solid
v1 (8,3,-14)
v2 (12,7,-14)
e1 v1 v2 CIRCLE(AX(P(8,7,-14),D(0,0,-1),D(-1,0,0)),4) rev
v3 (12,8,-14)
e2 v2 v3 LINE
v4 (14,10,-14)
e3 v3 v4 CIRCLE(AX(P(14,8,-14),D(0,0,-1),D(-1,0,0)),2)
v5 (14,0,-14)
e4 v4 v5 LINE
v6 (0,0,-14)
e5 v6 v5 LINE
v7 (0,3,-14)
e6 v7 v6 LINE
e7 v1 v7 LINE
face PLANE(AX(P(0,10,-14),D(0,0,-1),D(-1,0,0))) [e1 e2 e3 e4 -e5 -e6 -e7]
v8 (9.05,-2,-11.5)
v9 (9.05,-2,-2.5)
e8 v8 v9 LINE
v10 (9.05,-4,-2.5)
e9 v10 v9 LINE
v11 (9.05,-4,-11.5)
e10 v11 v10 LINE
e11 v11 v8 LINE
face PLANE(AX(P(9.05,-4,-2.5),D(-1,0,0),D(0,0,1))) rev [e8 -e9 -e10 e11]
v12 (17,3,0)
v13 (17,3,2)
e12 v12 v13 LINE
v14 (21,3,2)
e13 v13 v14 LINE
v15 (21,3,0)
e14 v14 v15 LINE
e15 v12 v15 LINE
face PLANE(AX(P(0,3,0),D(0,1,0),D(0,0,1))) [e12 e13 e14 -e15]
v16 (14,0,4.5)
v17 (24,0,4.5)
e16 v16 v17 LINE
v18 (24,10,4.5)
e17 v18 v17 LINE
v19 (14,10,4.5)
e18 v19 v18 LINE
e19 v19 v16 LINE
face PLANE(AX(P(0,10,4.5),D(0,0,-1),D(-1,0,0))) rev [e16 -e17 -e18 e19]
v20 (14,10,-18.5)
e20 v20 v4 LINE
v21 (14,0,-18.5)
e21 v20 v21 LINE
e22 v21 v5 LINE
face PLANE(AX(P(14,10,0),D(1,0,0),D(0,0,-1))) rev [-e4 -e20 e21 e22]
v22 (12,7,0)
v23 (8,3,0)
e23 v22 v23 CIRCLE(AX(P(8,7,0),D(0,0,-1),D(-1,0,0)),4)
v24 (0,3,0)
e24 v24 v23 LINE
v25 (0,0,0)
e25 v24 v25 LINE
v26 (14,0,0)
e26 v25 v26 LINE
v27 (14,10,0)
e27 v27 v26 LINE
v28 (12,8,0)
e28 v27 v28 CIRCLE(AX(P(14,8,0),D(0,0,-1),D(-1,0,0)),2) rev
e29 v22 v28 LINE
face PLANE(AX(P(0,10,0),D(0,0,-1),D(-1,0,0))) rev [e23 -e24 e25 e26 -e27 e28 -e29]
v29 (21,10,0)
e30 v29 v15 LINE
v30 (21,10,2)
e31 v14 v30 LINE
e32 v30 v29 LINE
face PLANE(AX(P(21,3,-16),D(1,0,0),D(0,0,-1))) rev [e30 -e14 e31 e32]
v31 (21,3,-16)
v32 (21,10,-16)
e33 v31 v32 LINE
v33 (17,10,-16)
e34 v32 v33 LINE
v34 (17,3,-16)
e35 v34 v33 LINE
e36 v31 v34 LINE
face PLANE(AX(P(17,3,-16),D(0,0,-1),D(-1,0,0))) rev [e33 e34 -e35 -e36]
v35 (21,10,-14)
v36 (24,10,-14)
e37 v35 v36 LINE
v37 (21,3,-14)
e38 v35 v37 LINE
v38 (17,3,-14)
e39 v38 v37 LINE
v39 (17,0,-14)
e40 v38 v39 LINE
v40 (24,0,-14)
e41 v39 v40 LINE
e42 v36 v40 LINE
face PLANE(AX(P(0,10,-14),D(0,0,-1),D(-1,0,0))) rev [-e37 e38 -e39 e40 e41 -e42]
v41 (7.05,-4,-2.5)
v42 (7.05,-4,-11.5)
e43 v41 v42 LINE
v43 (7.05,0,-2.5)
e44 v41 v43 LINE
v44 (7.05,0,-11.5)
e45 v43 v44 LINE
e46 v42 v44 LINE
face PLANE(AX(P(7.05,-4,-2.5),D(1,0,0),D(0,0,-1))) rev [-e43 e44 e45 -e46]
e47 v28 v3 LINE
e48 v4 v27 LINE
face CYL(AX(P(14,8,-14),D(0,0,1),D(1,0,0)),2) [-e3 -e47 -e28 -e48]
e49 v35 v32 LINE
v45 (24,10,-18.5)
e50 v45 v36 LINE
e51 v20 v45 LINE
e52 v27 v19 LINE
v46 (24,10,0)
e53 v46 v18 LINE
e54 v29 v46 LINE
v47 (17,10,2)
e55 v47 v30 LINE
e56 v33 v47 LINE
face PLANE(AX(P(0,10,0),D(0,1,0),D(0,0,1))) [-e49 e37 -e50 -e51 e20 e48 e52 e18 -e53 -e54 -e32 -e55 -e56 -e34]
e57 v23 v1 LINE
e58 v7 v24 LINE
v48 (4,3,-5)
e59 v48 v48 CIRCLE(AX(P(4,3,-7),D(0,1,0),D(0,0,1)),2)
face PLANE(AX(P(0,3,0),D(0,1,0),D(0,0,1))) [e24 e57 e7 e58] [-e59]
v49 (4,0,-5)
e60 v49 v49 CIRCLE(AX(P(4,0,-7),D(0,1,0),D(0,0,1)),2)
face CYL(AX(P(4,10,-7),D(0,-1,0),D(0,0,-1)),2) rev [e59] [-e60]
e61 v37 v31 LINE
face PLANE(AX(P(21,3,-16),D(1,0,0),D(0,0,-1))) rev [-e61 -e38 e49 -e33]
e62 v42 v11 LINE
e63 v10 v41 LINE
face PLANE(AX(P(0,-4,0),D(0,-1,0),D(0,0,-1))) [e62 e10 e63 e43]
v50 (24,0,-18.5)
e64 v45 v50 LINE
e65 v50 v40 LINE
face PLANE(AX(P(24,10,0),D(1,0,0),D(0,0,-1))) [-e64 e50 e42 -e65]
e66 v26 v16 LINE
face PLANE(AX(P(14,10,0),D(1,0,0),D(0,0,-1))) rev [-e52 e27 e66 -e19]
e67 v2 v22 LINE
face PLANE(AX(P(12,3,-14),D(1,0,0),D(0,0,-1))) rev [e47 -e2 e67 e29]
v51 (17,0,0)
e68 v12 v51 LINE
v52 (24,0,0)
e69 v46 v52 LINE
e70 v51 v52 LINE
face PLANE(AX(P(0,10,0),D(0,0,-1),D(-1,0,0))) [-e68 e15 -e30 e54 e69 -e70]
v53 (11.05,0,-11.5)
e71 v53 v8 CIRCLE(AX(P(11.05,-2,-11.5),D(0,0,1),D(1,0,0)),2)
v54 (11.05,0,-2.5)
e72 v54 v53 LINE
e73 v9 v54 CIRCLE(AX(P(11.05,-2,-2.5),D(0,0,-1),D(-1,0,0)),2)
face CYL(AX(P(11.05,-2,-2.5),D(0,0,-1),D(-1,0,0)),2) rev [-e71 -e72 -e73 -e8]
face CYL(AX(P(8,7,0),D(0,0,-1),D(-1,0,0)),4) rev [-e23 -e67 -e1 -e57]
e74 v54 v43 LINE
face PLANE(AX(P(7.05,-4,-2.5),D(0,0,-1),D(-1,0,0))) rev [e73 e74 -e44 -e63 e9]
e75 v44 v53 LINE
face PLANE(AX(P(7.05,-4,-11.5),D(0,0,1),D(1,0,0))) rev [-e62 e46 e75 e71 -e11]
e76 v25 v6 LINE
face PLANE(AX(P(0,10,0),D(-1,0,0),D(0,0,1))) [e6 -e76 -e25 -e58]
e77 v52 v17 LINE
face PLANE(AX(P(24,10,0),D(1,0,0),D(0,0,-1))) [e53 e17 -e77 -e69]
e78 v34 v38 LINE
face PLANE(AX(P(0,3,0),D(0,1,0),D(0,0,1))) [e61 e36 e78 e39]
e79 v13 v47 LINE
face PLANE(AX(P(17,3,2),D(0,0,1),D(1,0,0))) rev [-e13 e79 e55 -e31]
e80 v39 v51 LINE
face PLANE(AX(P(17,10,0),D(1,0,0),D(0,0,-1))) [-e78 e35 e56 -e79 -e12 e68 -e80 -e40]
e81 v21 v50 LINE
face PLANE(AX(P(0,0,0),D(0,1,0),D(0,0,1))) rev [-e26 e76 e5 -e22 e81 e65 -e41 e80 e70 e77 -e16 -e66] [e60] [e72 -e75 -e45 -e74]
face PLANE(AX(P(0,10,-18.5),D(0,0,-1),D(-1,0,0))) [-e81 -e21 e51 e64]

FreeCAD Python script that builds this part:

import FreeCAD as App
import Part
import Sketcher
from FreeCAD import Vector
Q = App.Units.Quantity


def edges_at(feature, points):
    """Names of the edges that pass closest to the given points."""
    edges = feature.Shape.Edges
    near = lambda p: min(range(len(edges)), key=lambda i: edges[i].distToShape(Part.Vertex(*p))[0])
    return sorted({f"Edge{near(p) + 1}" for p in points})

doc = App.newDocument("Part")
body = doc.addObject("PartDesign::Body", "Body")

sketch1 = body.newObject("Sketcher::SketchObject", "Sketch")
sketch1.AttachmentSupport = (doc.getObject("XZ_Plane"), [""])
sketch1.MapMode = "FlatFace"
sketch1.addGeometry(Part.LineSegment(Vector(14, 4.5, 0), Vector(24, 4.5, 0)), False)
sketch1.addGeometry(Part.LineSegment(Vector(24, 4.5, 0), Vector(24, 0, 0)), False)
sketch1.addGeometry(Part.LineSegment(Vector(24, 0, 0), Vector(17, 0, 0)), False)
sketch1.addGeometry(Part.LineSegment(Vector(17, 0, 0), Vector(17, -14, 0)), False)
sketch1.addGeometry(Part.LineSegment(Vector(17, -14, 0), Vector(24, -14, 0)), False)
sketch1.addGeometry(Part.LineSegment(Vector(24, -14, 0), Vector(24, -18.5, 0)), False)
sketch1.addGeometry(Part.LineSegment(Vector(24, -18.5, 0), Vector(14, -18.5, 0)), False)
sketch1.addGeometry(Part.LineSegment(Vector(14, -18.5, 0), Vector(14, -14, 0)), False)
sketch1.addGeometry(Part.LineSegment(Vector(14, -14, 0), Vector(0, -14, 0)), False)
sketch1.addGeometry(Part.LineSegment(Vector(0, -14, 0), Vector(0, 0, 0)), False)
sketch1.addGeometry(Part.LineSegment(Vector(0, 0, 0), Vector(14, 0, 0)), False)
sketch1.addGeometry(Part.LineSegment(Vector(14, 0, 0), Vector(14, 4.5, 0)), False)
sketch1.addGeometry(Part.Circle(Vector(4, -7, 0), Vector(0, 0, 1), 2), False)
sketch1.addConstraint(Sketcher.Constraint("Coincident", 0, 2, 1, 1))
sketch1.addConstraint(Sketcher.Constraint("Coincident", 1, 2, 2, 1))
sketch1.addConstraint(Sketcher.Constraint("Coincident", 2, 2, 3, 1))
sketch1.addConstraint(Sketcher.Constraint("Coincident", 3, 2, 4, 1))
sketch1.addConstraint(Sketcher.Constraint("Coincident", 4, 2, 5, 1))
sketch1.addConstraint(Sketcher.Constraint("Coincident", 5, 2, 6, 1))
sketch1.addConstraint(Sketcher.Constraint("Coincident", 6, 2, 7, 1))
sketch1.addConstraint(Sketcher.Constraint("Coincident", 7, 2, 8, 1))
sketch1.addConstraint(Sketcher.Constraint("Coincident", 8, 2, 9, 1))
sketch1.addConstraint(Sketcher.Constraint("Coincident", 9, 2, 10, 1))
sketch1.addConstraint(Sketcher.Constraint("Coincident", 10, 2, 11, 1))
sketch1.addConstraint(Sketcher.Constraint("Coincident", 11, 2, 0, 1))
sketch1.addConstraint(Sketcher.Constraint("Horizontal", 0))
sketch1.addConstraint(Sketcher.Constraint("Vertical", 1))
sketch1.addConstraint(Sketcher.Constraint("Horizontal", 2))
sketch1.addConstraint(Sketcher.Constraint("Vertical", 3))
sketch1.addConstraint(Sketcher.Constraint("Horizontal", 4))
sketch1.addConstraint(Sketcher.Constraint("Vertical", 5))
sketch1.addConstraint(Sketcher.Constraint("Horizontal", 6))
sketch1.addConstraint(Sketcher.Constraint("Vertical", 7))
sketch1.addConstraint(Sketcher.Constraint("Horizontal", 8))
sketch1.addConstraint(Sketcher.Constraint("Vertical", 9))
sketch1.addConstraint(Sketcher.Constraint("Horizontal", 10))
sketch1.addConstraint(Sketcher.Constraint("Vertical", 11))
sketch1.addConstraint(Sketcher.Constraint("Coincident", 9, 2, -1, 1))
sketch1.addConstraint(Sketcher.Constraint("PointOnObject", 1, 2, -1))
sketch1.addConstraint(Sketcher.Constraint("Horizontal", 4, 2, 7, 2))
sketch1.addConstraint(Sketcher.Constraint("Vertical", 1, 2, 4, 2))
sketch1.addConstraint(Sketcher.Constraint("Vertical", 7, 2, 10, 2))
sketch1.addConstraint(Sketcher.Constraint("Equal", 10, 3))
sketch1.addConstraint(Sketcher.Constraint("Equal", 1, 5))
sketch1.addConstraint(Sketcher.Constraint("Diameter", 12, Q("4 mm")))
sketch1.addConstraint(Sketcher.Constraint("DistanceX", 0, 1, 0, 2, Q("10 mm")))
sketch1.addConstraint(Sketcher.Constraint("DistanceX", 2, 2, 2, 1, Q("7 mm")))
sketch1.addConstraint(Sketcher.Constraint("DistanceX", 8, 2, 8, 1, Q("14 mm")))
sketch1.addConstraint(Sketcher.Constraint("DistanceY", 1, 2, 1, 1, Q("4.5 mm")))
sketch1.addConstraint(Sketcher.Constraint("DistanceX", -1, 1, 12, 3, Q("4 mm")))
sketch1.addConstraint(Sketcher.Constraint("DistanceY", 12, 3, -1, 1, Q("7 mm")))
pad1 = body.newObject("PartDesign::Pad", "Pad")
pad1.Profile = sketch1
pad1.Length = 10
pad1.Reversed = True

sketch2 = body.newObject("Sketcher::SketchObject", "Sketch001")
sketch2.AttachmentSupport = (doc.getObject("XZ_Plane"), [""])
sketch2.MapMode = "FlatFace"
sketch2.AttachmentOffset = App.Placement(Vector(0, 0, -10), App.Rotation())
sketch2.addGeometry(Part.LineSegment(Vector(17, -16, 0), Vector(17, 2, 0)), False)
sketch2.addGeometry(Part.LineSegment(Vector(17, 2, 0), Vector(21, 2, 0)), False)
sketch2.addGeometry(Part.LineSegment(Vector(21, 2, 0), Vector(21, -16, 0)), False)
sketch2.addGeometry(Part.LineSegment(Vector(21, -16, 0), Vector(17, -16, 0)), False)
sketch2.addGeometry(Part.LineSegment(Vector(0, -14, 0), Vector(0, 0, 0)), False)
sketch2.addGeometry(Part.LineSegment(Vector(0, 0, 0), Vector(12, 0, 0)), False)
sketch2.addGeometry(Part.LineSegment(Vector(12, 0, 0), Vector(12, -14, 0)), False)
sketch2.addGeometry(Part.LineSegment(Vector(12, -14, 0), Vector(0, -14, 0)), False)
sketch2.addConstraint(Sketcher.Constraint("Coincident", 0, 2, 1, 1))
sketch2.addConstraint(Sketcher.Constraint("Coincident", 1, 2, 2, 1))
sketch2.addConstraint(Sketcher.Constraint("Coincident", 2, 2, 3, 1))
sketch2.addConstraint(Sketcher.Constraint("Coincident", 3, 2, 0, 1))
sketch2.addConstraint(Sketcher.Constraint("Coincident", 4, 2, 5, 1))
sketch2.addConstraint(Sketcher.Constraint("Coincident", 5, 2, 6, 1))
sketch2.addConstraint(Sketcher.Constraint("Coincident", 6, 2, 7, 1))
sketch2.addConstraint(Sketcher.Constraint("Coincident", 7, 2, 4, 1))
sketch2.addConstraint(Sketcher.Constraint("Vertical", 0))
sketch2.addConstraint(Sketcher.Constraint("Horizontal", 1))
sketch2.addConstraint(Sketcher.Constraint("Vertical", 2))
sketch2.addConstraint(Sketcher.Constraint("Horizontal", 3))
sketch2.addConstraint(Sketcher.Constraint("Vertical", 4))
sketch2.addConstraint(Sketcher.Constraint("Horizontal", 5))
sketch2.addConstraint(Sketcher.Constraint("Vertical", 6))
sketch2.addConstraint(Sketcher.Constraint("Horizontal", 7))
sketch2.addConstraint(Sketcher.Constraint("Coincident", 4, 2, -1, 1))
sketch2.addConstraint(Sketcher.Constraint("DistanceX", 1, 1, 1, 2, Q("4 mm")))
sketch2.addConstraint(Sketcher.Constraint("DistanceX", 5, 1, 5, 2, Q("12 mm")))
sketch2.addConstraint(Sketcher.Constraint("DistanceY", 0, 1, 0, 2, Q("18 mm")))
sketch2.addConstraint(Sketcher.Constraint("DistanceY", 4, 1, 4, 2, Q("14 mm")))
sketch2.addConstraint(Sketcher.Constraint("DistanceX", -1, 1, 0, 2, Q("17 mm")))
sketch2.addConstraint(Sketcher.Constraint("DistanceY", -1, 1, 0, 2, Q("2 mm")))
pocket1 = body.newObject("PartDesign::Pocket", "Pocket")
pocket1.Profile = sketch2
pocket1.Length = 7
pocket1.Reversed = True
doc.recompute()

fillet = body.newObject("PartDesign::Fillet", "Fillet")
fillet.Base = (pocket1, edges_at(pocket1, [(12, 3, -7)]))
fillet.Radius = 4
doc.recompute()

fillet2 = body.newObject("PartDesign::Fillet", "Fillet001")
fillet2.Base = (fillet, edges_at(fillet, [(12, 10, -7)]))
fillet2.Radius = 2

sketch3 = body.newObject("Sketcher::SketchObject", "Sketch002")
sketch3.AttachmentSupport = (doc.getObject("XZ_Plane"), [""])
sketch3.MapMode = "FlatFace"
sketch3.addGeometry(Part.LineSegment(Vector(7, -2.5, 0), Vector(7, -11.5, 0)), False)
sketch3.addGeometry(Part.LineSegment(Vector(7, -11.5, 0), Vector(9.1, -11.5, 0)), False)
sketch3.addGeometry(Part.LineSegment(Vector(9.1, -11.5, 0), Vector(9.1, -2.5, 0)), False)
sketch3.addGeometry(Part.LineSegment(Vector(9.1, -2.5, 0), Vector(7, -2.5, 0)), False)
sketch3.addConstraint(Sketcher.Constraint("Coincident", 0, 2, 1, 1))
sketch3.addConstraint(Sketcher.Constraint("Coincident", 1, 2, 2, 1))
sketch3.addConstraint(Sketcher.Constraint("Coincident", 2, 2, 3, 1))
sketch3.addConstraint(Sketcher.Constraint("Coincident", 3, 2, 0, 1))
sketch3.addConstraint(Sketcher.Constraint("Vertical", 0))
sketch3.addConstraint(Sketcher.Constraint("Horizontal", 1))
sketch3.addConstraint(Sketcher.Constraint("Vertical", 2))
sketch3.addConstraint(Sketcher.Constraint("Horizontal", 3))
sketch3.addConstraint(Sketcher.Constraint("DistanceX", 1, 1, 1, 2, Q("2 mm")))
sketch3.addConstraint(Sketcher.Constraint("DistanceY", 0, 2, 0, 1, Q("9 mm")))
sketch3.addConstraint(Sketcher.Constraint("DistanceY", 0, 2, -1, 1, Q("11.5 mm")))
sketch3.addConstraint(Sketcher.Constraint("DistanceX", -1, 1, 0, 2, Q("7.05 mm")))
pad2 = body.newObject("PartDesign::Pad", "Pad001")
pad2.Profile = sketch3
pad2.Length = 4
doc.recompute()

fillet3 = body.newObject("PartDesign::Fillet", "Fillet002")
fillet3.Base = (pad2, edges_at(pad2, [(9.05, 0, -7)]))
fillet3.Radius = 2

doc.recompute()
